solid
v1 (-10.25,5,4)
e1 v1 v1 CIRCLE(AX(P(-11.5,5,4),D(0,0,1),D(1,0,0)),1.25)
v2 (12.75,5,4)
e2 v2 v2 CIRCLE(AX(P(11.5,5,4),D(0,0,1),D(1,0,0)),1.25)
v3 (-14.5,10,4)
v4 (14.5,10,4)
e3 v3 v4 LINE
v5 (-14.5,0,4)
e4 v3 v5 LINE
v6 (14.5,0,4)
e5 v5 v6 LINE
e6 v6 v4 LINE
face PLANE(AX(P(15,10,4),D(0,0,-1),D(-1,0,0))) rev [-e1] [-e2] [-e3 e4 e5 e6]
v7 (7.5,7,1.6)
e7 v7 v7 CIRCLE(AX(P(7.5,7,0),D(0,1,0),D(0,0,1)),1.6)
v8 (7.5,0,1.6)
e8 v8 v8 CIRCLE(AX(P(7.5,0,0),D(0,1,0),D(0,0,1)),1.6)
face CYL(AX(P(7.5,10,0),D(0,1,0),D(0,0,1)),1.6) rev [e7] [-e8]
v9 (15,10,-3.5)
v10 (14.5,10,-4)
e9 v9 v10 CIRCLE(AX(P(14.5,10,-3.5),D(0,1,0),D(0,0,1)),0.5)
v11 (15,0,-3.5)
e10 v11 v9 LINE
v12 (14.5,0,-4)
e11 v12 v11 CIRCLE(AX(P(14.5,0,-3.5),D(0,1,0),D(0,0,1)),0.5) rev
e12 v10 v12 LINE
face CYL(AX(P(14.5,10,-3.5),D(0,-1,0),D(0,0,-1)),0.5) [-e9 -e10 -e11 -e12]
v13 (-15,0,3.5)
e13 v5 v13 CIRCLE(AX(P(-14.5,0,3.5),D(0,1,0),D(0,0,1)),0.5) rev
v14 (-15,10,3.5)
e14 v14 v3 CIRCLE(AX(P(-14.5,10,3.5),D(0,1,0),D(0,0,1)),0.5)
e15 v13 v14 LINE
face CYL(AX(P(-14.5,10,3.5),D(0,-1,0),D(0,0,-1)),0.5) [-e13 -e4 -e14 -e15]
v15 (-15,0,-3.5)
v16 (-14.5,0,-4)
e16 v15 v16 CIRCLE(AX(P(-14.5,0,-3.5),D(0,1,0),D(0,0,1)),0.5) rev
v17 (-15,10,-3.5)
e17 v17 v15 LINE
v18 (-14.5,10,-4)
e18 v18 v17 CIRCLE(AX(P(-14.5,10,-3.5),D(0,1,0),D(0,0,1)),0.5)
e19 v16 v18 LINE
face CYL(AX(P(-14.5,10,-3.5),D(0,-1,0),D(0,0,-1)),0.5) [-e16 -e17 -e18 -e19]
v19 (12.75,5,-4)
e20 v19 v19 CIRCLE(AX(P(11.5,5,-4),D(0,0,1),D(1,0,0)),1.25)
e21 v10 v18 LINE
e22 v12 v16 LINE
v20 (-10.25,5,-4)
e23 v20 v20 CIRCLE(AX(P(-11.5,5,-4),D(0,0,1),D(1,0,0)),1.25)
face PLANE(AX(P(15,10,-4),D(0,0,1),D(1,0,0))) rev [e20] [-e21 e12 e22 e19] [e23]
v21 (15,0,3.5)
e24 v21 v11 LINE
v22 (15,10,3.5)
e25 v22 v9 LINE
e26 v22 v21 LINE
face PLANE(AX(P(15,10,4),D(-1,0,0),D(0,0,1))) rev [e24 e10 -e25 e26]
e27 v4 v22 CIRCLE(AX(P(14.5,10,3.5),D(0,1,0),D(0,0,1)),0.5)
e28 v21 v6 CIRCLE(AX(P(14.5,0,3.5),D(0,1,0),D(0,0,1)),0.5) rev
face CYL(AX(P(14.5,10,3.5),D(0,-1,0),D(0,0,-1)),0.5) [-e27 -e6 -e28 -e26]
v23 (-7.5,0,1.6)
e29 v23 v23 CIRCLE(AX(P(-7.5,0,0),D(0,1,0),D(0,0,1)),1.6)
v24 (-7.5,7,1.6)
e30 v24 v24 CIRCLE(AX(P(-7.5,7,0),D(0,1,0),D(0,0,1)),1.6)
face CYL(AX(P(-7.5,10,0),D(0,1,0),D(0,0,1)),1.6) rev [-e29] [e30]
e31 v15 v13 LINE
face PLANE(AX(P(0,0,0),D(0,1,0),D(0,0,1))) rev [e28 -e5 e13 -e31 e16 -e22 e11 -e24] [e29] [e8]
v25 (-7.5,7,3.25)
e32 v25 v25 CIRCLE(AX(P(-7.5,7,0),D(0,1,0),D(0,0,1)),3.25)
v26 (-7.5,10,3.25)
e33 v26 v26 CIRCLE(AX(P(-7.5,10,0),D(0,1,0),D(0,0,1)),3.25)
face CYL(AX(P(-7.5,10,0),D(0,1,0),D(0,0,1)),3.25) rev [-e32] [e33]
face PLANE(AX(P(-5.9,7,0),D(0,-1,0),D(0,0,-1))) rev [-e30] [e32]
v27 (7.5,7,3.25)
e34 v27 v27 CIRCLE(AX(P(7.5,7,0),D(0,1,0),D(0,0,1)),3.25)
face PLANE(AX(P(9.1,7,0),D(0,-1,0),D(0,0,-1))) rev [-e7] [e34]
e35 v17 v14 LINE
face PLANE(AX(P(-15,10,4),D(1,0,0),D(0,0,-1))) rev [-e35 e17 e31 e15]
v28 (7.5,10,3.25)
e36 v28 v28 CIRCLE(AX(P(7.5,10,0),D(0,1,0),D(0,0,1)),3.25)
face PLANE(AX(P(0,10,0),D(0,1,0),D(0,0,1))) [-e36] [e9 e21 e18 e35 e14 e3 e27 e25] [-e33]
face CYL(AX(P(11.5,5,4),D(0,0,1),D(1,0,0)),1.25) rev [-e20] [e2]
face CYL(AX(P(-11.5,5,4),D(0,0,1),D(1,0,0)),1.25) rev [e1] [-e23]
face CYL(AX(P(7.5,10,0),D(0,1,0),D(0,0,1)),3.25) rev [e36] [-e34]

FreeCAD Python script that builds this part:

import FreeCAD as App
import Part
import Sketcher


def edges_at(feature, points):
    """Names of the edges that pass closest to the given points."""
    edges = feature.Shape.Edges
    near = lambda p: min(range(len(edges)), key=lambda i: edges[i].distToShape(Part.Vertex(*p))[0])
    return sorted({f"Edge{near(p) + 1}" for p in points})

doc = App.newDocument("Part")
body = doc.addObject("PartDesign::Body", "Body")

# Sketch on XZ plane
sketch1 = body.newObject("Sketcher::SketchObject", "Sketch")
sketch1.AttachmentSupport = (doc.getObject("XZ_Plane"), [""])
sketch1.MapMode = "FlatFace"
sketch1.addGeometry([
    Part.LineSegment(App.Vector(-15, -4, 0), App.Vector(-15, 4, 0)),
    Part.LineSegment(App.Vector(-15, 4, 0), App.Vector(15, 4, 0)),
    Part.LineSegment(App.Vector(15, 4, 0), App.Vector(15, -4, 0)),
    Part.LineSegment(App.Vector(15, -4, 0), App.Vector(-15, -4, 0)),
], False)
sketch1.addConstraint([
    Sketcher.Constraint("Coincident", 0, 2, 1, 1),
    Sketcher.Constraint("Coincident", 1, 2, 2, 1),
    Sketcher.Constraint("Coincident", 2, 2, 3, 1),
    Sketcher.Constraint("Coincident", 3, 2, 0, 1),
    Sketcher.Constraint("Vertical", 0),
    Sketcher.Constraint("Horizontal", 1),
    Sketcher.Constraint("Vertical", 2),
    Sketcher.Constraint("Horizontal", 3),
    Sketcher.Constraint("Symmetric", 0, 2, 2, 2, -1, 1),
    Sketcher.Constraint("DistanceX", 1, 1, 1, 2, 30.0),
    Sketcher.Constraint("DistanceY", 0, 1, 0, 2, 8.0),
])
pad1 = body.newObject("PartDesign::Pad", "Pad")
pad1.Profile = sketch1
pad1.Length = 10
pad1.Reversed = True

# Sketch on XZ plane
sketch2 = body.newObject("Sketcher::SketchObject", "Sketch001")
sketch2.AttachmentSupport = (doc.getObject("XZ_Plane"), [""])
sketch2.MapMode = "FlatFace"
sketch2.AttachmentOffset = App.Placement(App.Vector(0, 0, -10), App.Rotation())
sketch2.addGeometry([
    Part.Circle(App.Vector(-7.5, 0, 0), App.Vector(0, 0, 1), 1.6),
    Part.Circle(App.Vector(7.5, 0, 0), App.Vector(0, 0, 1), 1.6),
], False)
sketch2.addConstraint([
    Sketcher.Constraint("Equal", 0, 1),
    Sketcher.Constraint("Symmetric", 0, 3, 1, 3, -1, 1),
    Sketcher.Constraint("PointOnObject", 0, 3, -1),
    Sketcher.Constraint("Diameter", 0, 3.2),
    Sketcher.Constraint("DistanceX", 0, 3, 1, 3, 15.0),
])
doc.recompute()
hole = body.newObject("PartDesign::Hole", "Hole")
hole.Profile = sketch2
hole.ThreadType = "None"
hole.Diameter = 3.2
hole.DepthType = "ThroughAll"
hole.HoleCutType = "Counterbore"
hole.HoleCutDiameter = 6.5
hole.HoleCutDepth = 3
hole.Reversed = True

# Sketch on XY plane
sketch3 = body.newObject("Sketcher::SketchObject", "Sketch002")
sketch3.AttachmentSupport = (doc.getObject("XY_Plane"), [""])
sketch3.MapMode = "FlatFace"
sketch3.AttachmentOffset = App.Placement(App.Vector(0, 0, 4), App.Rotation())
sketch3.addGeometry([
    Part.Circle(App.Vector(-11.5, 5, 0), App.Vector(0, 0, 1), 1.2),
    Part.Circle(App.Vector(11.5, 5, 0), App.Vector(0, 0, 1), 1.2),
], False)
sketch3.addConstraint([
    Sketcher.Constraint("Equal", 0, 1),
    Sketcher.Constraint("Symmetric", 0, 3, 1, 3, -2),
    Sketcher.Constraint("Diameter", 0, 2.5),
    Sketcher.Constraint("DistanceY", -1, 1, 0, 3, 5.0),
    Sketcher.Constraint("DistanceX", 0, 3, 1, 3, 23.0),
])
doc.recompute()
hole2 = body.newObject("PartDesign::Hole", "Hole001")
hole2.Profile = sketch3
hole2.ThreadType = "None"
hole2.Diameter = 2.5
hole2.DepthType = "ThroughAll"
doc.recompute()

fillet = body.newObject("PartDesign::Fillet", "Fillet")
fillet.Base = (hole2, edges_at(hole2, [
    (-15, 5, -4),
    (15, 5, -4),
    (15, 5, 4),
    (-15, 5, 4),
]))
fillet.Radius = 0.5

doc.recompute()
